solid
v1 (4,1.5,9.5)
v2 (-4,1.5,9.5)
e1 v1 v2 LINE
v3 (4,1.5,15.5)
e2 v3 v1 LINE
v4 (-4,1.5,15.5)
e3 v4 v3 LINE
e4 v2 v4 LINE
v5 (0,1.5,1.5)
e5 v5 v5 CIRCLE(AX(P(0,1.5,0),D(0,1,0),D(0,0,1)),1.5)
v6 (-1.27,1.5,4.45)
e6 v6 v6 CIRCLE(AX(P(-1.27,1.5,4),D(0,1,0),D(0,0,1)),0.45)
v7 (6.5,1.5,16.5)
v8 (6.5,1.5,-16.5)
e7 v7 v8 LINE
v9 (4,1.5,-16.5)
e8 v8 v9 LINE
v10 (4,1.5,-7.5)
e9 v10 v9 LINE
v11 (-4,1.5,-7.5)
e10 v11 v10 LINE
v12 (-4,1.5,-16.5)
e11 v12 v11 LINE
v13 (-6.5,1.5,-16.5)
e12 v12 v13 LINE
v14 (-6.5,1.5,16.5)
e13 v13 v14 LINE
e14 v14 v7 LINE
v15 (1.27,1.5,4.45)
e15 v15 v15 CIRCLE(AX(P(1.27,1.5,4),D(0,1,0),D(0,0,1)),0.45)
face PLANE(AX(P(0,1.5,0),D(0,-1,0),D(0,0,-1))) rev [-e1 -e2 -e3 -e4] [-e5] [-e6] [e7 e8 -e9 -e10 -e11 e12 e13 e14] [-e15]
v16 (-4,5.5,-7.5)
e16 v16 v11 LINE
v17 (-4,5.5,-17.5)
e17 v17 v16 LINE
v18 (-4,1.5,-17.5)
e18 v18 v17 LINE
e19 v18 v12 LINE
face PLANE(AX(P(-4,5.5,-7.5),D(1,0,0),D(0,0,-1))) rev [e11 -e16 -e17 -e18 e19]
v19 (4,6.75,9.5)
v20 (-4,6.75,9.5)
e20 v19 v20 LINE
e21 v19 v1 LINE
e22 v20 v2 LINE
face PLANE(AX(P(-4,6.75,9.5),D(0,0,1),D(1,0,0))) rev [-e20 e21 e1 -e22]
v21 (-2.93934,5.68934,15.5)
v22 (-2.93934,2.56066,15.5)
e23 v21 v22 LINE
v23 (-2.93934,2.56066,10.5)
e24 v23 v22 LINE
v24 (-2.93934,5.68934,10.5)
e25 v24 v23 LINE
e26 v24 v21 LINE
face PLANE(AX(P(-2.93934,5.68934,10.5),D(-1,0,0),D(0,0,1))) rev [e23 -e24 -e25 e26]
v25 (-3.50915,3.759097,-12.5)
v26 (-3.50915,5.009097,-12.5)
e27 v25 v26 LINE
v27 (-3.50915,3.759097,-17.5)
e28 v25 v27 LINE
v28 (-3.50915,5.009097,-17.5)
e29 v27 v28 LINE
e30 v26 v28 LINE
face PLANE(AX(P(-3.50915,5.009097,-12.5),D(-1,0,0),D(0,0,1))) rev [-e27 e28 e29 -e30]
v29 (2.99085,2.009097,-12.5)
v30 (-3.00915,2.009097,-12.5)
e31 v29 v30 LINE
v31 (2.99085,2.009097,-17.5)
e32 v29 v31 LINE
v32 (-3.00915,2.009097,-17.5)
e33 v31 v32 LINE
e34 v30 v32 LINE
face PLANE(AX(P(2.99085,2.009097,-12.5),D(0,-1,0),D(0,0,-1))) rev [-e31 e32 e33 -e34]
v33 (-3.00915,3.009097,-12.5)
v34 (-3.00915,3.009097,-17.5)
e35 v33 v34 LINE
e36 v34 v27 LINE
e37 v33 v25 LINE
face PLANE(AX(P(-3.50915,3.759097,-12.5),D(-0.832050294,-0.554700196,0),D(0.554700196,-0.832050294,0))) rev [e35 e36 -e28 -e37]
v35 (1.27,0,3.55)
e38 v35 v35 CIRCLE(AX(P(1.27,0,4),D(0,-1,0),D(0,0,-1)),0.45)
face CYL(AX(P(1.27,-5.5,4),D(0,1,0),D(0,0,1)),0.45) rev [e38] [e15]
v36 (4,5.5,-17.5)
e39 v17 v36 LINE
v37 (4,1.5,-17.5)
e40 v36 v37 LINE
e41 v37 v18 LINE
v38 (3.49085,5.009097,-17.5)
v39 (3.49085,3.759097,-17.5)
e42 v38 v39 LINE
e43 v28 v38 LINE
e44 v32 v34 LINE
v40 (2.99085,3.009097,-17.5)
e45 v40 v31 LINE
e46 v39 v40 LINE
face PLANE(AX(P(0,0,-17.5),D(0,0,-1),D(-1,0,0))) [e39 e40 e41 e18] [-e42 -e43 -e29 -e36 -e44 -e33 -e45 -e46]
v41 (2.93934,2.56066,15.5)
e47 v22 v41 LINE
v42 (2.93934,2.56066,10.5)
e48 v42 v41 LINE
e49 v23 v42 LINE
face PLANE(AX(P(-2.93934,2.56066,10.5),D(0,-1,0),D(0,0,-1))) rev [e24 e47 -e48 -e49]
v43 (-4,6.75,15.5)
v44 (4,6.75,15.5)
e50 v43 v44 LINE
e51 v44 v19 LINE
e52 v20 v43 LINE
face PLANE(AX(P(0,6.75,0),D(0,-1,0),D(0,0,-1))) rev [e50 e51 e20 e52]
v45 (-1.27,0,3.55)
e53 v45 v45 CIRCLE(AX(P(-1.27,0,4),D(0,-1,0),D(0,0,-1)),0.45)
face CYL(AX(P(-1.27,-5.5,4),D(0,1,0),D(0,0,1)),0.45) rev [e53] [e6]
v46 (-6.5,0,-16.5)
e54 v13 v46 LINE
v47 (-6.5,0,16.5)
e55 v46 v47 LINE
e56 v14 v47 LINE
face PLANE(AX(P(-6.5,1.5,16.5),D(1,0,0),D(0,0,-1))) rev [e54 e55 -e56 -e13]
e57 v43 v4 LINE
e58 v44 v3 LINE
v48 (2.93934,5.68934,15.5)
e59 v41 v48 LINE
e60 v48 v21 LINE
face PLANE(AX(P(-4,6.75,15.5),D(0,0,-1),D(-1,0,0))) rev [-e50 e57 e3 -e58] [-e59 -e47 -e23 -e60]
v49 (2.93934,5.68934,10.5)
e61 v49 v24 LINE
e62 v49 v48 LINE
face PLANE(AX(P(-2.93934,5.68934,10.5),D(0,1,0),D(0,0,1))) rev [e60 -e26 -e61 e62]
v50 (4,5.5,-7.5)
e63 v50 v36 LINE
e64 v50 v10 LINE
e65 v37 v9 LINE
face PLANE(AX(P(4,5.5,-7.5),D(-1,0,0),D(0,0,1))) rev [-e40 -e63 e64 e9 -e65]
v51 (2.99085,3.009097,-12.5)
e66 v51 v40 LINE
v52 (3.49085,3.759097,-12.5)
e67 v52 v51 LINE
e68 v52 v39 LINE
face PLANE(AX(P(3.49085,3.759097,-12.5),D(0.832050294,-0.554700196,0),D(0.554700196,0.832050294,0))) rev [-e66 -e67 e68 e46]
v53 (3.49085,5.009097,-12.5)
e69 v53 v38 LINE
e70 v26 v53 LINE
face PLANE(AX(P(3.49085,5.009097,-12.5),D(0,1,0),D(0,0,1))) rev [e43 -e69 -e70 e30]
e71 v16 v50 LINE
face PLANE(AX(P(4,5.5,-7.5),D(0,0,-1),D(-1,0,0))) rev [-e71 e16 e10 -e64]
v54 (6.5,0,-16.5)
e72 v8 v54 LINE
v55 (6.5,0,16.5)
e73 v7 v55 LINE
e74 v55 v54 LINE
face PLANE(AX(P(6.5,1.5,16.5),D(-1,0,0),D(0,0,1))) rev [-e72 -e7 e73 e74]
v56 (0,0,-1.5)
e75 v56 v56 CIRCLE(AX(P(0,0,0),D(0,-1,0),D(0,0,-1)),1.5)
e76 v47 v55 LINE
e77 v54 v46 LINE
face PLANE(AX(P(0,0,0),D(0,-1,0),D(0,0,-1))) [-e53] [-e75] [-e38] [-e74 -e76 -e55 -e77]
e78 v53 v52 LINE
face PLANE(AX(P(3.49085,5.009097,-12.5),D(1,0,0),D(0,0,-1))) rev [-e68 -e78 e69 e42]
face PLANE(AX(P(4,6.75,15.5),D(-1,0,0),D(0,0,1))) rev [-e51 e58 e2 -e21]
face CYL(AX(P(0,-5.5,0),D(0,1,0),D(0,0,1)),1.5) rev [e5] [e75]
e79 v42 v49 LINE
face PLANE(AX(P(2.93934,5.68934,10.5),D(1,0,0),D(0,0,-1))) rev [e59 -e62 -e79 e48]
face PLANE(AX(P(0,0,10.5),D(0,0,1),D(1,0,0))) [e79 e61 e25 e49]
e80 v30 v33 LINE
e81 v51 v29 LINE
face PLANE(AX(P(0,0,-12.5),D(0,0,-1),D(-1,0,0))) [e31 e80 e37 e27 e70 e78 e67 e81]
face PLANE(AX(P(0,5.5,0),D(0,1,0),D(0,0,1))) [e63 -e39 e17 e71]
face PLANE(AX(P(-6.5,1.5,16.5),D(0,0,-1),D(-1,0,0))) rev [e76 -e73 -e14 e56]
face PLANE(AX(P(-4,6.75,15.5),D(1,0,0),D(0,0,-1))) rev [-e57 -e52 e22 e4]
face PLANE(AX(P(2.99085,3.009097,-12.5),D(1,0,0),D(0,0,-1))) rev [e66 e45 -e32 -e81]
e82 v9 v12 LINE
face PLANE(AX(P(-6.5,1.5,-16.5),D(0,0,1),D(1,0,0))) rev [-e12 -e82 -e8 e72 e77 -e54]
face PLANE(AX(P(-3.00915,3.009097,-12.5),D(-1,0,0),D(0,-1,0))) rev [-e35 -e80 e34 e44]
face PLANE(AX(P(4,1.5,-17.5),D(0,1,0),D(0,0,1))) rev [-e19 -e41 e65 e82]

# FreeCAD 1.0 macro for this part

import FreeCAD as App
import Part
import Sketcher
Q = App.Units.Quantity


def add_polygon(sketch, points):
    """Adds a closed chain of lines whose ends are joined by coincident constraints."""
    first, n = sketch.GeometryCount, len(points)
    for a, b in zip(points, points[1:] + points[:1]):
        sketch.addGeometry(Part.LineSegment(App.Vector(*a, 0), App.Vector(*b, 0)), False)
    for i in range(n):
        sketch.addConstraint(Sketcher.Constraint("Coincident", first + i, 2, first + (i + 1) % n, 1))

doc = App.newDocument("Part")
body = doc.addObject("PartDesign::Body", "Body")

# Sketch on XZ plane
sketch1 = body.newObject("Sketcher::SketchObject", "Sketch")
sketch1.AttachmentSupport = (doc.getObject("XZ_Plane"), [""])
sketch1.MapMode = "FlatFace"
add_polygon(sketch1, [(-6.5, -16.5), (-6.5, 16.5), (6.5, 16.5), (6.5, -16.5)])  # lines 0-3
sketch1.addConstraint(Sketcher.Constraint("Vertical", 0))
sketch1.addConstraint(Sketcher.Constraint("Horizontal", 1))
sketch1.addConstraint(Sketcher.Constraint("Vertical", 2))
sketch1.addConstraint(Sketcher.Constraint("Horizontal", 3))
sketch1.addConstraint(Sketcher.Constraint("Symmetric", 0, 2, 2, 2, -1, 1))
sketch1.addConstraint(Sketcher.Constraint("DistanceX", 1, 1, 1, 2, Q("13 mm")))
sketch1.addConstraint(Sketcher.Constraint("DistanceY", 0, 1, 0, 2, Q("33 mm")))
pad1 = body.newObject("PartDesign::Pad", "Pad")
pad1.Profile = sketch1
pad1.Length = 1.5
pad1.Reversed = True

# Sketch on XZ plane
sketch2 = body.newObject("Sketcher::SketchObject", "Sketch001")
sketch2.AttachmentSupport = (doc.getObject("XZ_Plane"), [""])
sketch2.MapMode = "FlatFace"
sketch2.AttachmentOffset = App.Placement(App.Vector(0, 0, -1.5), App.Rotation())
add_polygon(sketch2, [(-4, 9.5), (-4, 15.5), (4, 15.5), (4, 9.5)])  # lines 0-3
sketch2.addConstraint(Sketcher.Constraint("Vertical", 0))
sketch2.addConstraint(Sketcher.Constraint("Horizontal", 1))
sketch2.addConstraint(Sketcher.Constraint("Vertical", 2))
sketch2.addConstraint(Sketcher.Constraint("Horizontal", 3))
sketch2.addConstraint(Sketcher.Constraint("DistanceX", 1, 1, 1, 2, Q("8 mm")))
sketch2.addConstraint(Sketcher.Constraint("DistanceY", 0, 1, 0, 2, Q("6 mm")))
sketch2.addConstraint(Sketcher.Constraint("DistanceX", 0, 2, -1, 1, Q("4 mm")))
sketch2.addConstraint(Sketcher.Constraint("DistanceY", -1, 1, 0, 2, Q("15.5 mm")))
pad2 = body.newObject("PartDesign::Pad", "Pad001")
pad2.Profile = sketch2
pad2.Length = 5.25
pad2.Reversed = True

# Sketch on XY plane
sketch3 = body.newObject("Sketcher::SketchObject", "Sketch002")
sketch3.AttachmentSupport = (doc.getObject("XY_Plane"), [""])
sketch3.MapMode = "FlatFace"
sketch3.AttachmentOffset = App.Placement(App.Vector(0, 0, 15.5), App.Rotation())
add_polygon(sketch3, [(-2.93934, 5.68934), (-2.93934, 2.56066), (2.93934, 2.56066), (2.93934, 5.68934)])  # lines 0-3
sketch3.addConstraint(Sketcher.Constraint("Vertical", 0))
sketch3.addConstraint(Sketcher.Constraint("Horizontal", 1))
sketch3.addConstraint(Sketcher.Constraint("Vertical", 2))
sketch3.addConstraint(Sketcher.Constraint("Horizontal", 3))
sketch3.addConstraint(Sketcher.Constraint("DistanceX", 1, 1, 1, 2, Q("5.87868 mm")))
sketch3.addConstraint(Sketcher.Constraint("DistanceY", 0, 2, 0, 1, Q("3.12868 mm")))
sketch3.addConstraint(Sketcher.Constraint("DistanceX", 0, 2, -1, 1, Q("2.93934 mm")))
sketch3.addConstraint(Sketcher.Constraint("DistanceY", -1, 1, 0, 2, Q("2.56066 mm")))
pocket1 = body.newObject("PartDesign::Pocket", "Pocket")
pocket1.Profile = sketch3
pocket1.Length = 5

# Sketch on XZ plane
sketch4 = body.newObject("Sketcher::SketchObject", "Sketch003")
sketch4.AttachmentSupport = (doc.getObject("XZ_Plane"), [""])
sketch4.MapMode = "FlatFace"
sketch4.AttachmentOffset = App.Placement(App.Vector(0, 0, -1.5), App.Rotation())
sketch4.addGeometry(Part.Circle(App.Vector(0, 0, 0), App.Vector(0, 0, 1), 1.5), False)
sketch4.addConstraint(Sketcher.Constraint("Coincident", 0, 3, -1, 1))
sketch4.addConstraint(Sketcher.Constraint("Diameter", 0, Q("3 mm")))
pocket2 = body.newObject("PartDesign::Pocket", "Pocket001")
pocket2.Profile = sketch4
pocket2.Length = 7
pocket2.Reversed = True

# Sketch on XZ plane
sketch5 = body.newObject("Sketcher::SketchObject", "Sketch004")
sketch5.AttachmentSupport = (doc.getObject("XZ_Plane"), [""])
sketch5.MapMode = "FlatFace"
sketch5.AttachmentOffset = App.Placement(App.Vector(0, 0, -1.5), App.Rotation())
sketch5.addGeometry(Part.Circle(App.Vector(-1.27, 4, 0), App.Vector(0, 0, 1), 0.45), False)
sketch5.addGeometry(Part.Circle(App.Vector(1.27, 4, 0), App.Vector(0, 0, 1), 0.45), False)
sketch5.addConstraint(Sketcher.Constraint("Equal", 0, 1))
sketch5.addConstraint(Sketcher.Constraint("Symmetric", 0, 3, 1, 3, -2))
sketch5.addConstraint(Sketcher.Constraint("Diameter", 0, Q("0.9 mm")))
sketch5.addConstraint(Sketcher.Constraint("DistanceY", -1, 1, 0, 3, Q("4 mm")))
sketch5.addConstraint(Sketcher.Constraint("DistanceX", 0, 3, -1, 1, Q("1.27 mm")))
pocket3 = body.newObject("PartDesign::Pocket", "Pocket002")
pocket3.Profile = sketch5
pocket3.Length = 7
pocket3.Reversed = True

# Sketch on XZ plane
sketch6 = body.newObject("Sketcher::SketchObject", "Sketch005")
sketch6.AttachmentSupport = (doc.getObject("XZ_Plane"), [""])
sketch6.MapMode = "FlatFace"
sketch6.AttachmentOffset = App.Placement(App.Vector(0, 0, -1.5), App.Rotation())
add_polygon(sketch6, [(-4, -16.5), (-4, -7.5), (4, -7.5), (4, -16.5)])  # lines 0-3
sketch6.addConstraint(Sketcher.Constraint("Vertical", 0))
sketch6.addConstraint(Sketcher.Constraint("Horizontal", 1))
sketch6.addConstraint(Sketcher.Constraint("Vertical", 2))
sketch6.addConstraint(Sketcher.Constraint("Horizontal", 3))
sketch6.addConstraint(Sketcher.Constraint("DistanceX", 1, 1, 1, 2, Q("8 mm")))
sketch6.addConstraint(Sketcher.Constraint("DistanceY", 0, 1, 0, 2, Q("9 mm")))
sketch6.addConstraint(Sketcher.Constraint("DistanceX", 0, 2, -1, 1, Q("4 mm")))
sketch6.addConstraint(Sketcher.Constraint("DistanceY", 0, 2, -1, 1, Q("7.5 mm")))
pad3 = body.newObject("PartDesign::Pad", "Pad002")
pad3.Profile = sketch6
pad3.Length = 4
pad3.Reversed = True

# Sketch on XY plane
sketch7 = body.newObject("Sketcher::SketchObject", "Sketch006")
sketch7.AttachmentSupport = (doc.getObject("XY_Plane"), [""])
sketch7.MapMode = "FlatFace"
sketch7.AttachmentOffset = App.Placement(App.Vector(0, 0, -16.5), App.Rotation())
add_polygon(sketch7, [(4, 5.5), (4, 1.5), (-4, 1.5), (-4, 5.5)])  # lines 0-3
sketch7.addConstraint(Sketcher.Constraint("Vertical", 0))
sketch7.addConstraint(Sketcher.Constraint("Horizontal", 1))
sketch7.addConstraint(Sketcher.Constraint("Vertical", 2))
sketch7.addConstraint(Sketcher.Constraint("Horizontal", 3))
sketch7.addConstraint(Sketcher.Constraint("DistanceX", 1, 2, 1, 1, Q("8 mm")))
sketch7.addConstraint(Sketcher.Constraint("DistanceY", 0, 2, 0, 1, Q("4 mm")))
sketch7.addConstraint(Sketcher.Constraint("DistanceX", -1, 1, 0, 2, Q("4 mm")))
sketch7.addConstraint(Sketcher.Constraint("DistanceY", -1, 1, 0, 2, Q("1.5 mm")))
pad4 = body.newObject("PartDesign::Pad", "Pad003")
pad4.Profile = sketch7
pad4.Length = 1
pad4.Reversed = True

# Sketch on XY plane
sketch8 = body.newObject("Sketcher::SketchObject", "Sketch007")
sketch8.AttachmentSupport = (doc.getObject("XY_Plane"), [""])
sketch8.MapMode = "FlatFace"
sketch8.AttachmentOffset = App.Placement(App.Vector(0, 0, -17.5), App.Rotation())
add_polygon(sketch8, [(-3.50915, 5.009097), (3.49085, 5.009097), (3.49085, 3.759097), (2.99085, 3.009097), (2.99085, 2.009097), (-3.00915, 2.009097), (-3.00915, 3.009097), (-3.50915, 3.759097)])  # lines 0-7
sketch8.addConstraint(Sketcher.Constraint("Horizontal", 0))
sketch8.addConstraint(Sketcher.Constraint("Vertical", 1))
sketch8.addConstraint(Sketcher.Constraint("Vertical", 3))
sketch8.addConstraint(Sketcher.Constraint("Horizontal", 4))
sketch8.addConstraint(Sketcher.Constraint("Vertical", 5))
sketch8.addConstraint(Sketcher.Constraint("Vertical", 7))
sketch8.addConstraint(Sketcher.Constraint("Horizontal", 2, 2, 5, 2))
sketch8.addConstraint(Sketcher.Constraint("Horizontal", 1, 2, 6, 2))
sketch8.addConstraint(Sketcher.Constraint("Equal", 2, 6))
sketch8.addConstraint(Sketcher.Constraint("DistanceX", 0, 1, 0, 2, Q("7 mm")))
sketch8.addConstraint(Sketcher.Constraint("DistanceX", 4, 2, 4, 1, Q("6 mm")))
sketch8.addConstraint(Sketcher.Constraint("DistanceY", 3, 2, 3, 1, Q("1 mm")))
sketch8.addConstraint(Sketcher.Constraint("DistanceY", 2, 2, 0, 2, Q("2 mm")))
sketch8.addConstraint(Sketcher.Constraint("DistanceY", 1, 2, 1, 1, Q("1.25 mm")))
sketch8.addConstraint(Sketcher.Constraint("DistanceX", -1, 1, 0, 2, Q("3.49085 mm")))
sketch8.addConstraint(Sketcher.Constraint("DistanceY", -1, 1, 0, 2, Q("5.009097 mm")))
pocket4 = body.newObject("PartDesign::Pocket", "Pocket003")
pocket4.Profile = sketch8
pocket4.Length = 5
pocket4.Reversed = True

doc.recompute()
